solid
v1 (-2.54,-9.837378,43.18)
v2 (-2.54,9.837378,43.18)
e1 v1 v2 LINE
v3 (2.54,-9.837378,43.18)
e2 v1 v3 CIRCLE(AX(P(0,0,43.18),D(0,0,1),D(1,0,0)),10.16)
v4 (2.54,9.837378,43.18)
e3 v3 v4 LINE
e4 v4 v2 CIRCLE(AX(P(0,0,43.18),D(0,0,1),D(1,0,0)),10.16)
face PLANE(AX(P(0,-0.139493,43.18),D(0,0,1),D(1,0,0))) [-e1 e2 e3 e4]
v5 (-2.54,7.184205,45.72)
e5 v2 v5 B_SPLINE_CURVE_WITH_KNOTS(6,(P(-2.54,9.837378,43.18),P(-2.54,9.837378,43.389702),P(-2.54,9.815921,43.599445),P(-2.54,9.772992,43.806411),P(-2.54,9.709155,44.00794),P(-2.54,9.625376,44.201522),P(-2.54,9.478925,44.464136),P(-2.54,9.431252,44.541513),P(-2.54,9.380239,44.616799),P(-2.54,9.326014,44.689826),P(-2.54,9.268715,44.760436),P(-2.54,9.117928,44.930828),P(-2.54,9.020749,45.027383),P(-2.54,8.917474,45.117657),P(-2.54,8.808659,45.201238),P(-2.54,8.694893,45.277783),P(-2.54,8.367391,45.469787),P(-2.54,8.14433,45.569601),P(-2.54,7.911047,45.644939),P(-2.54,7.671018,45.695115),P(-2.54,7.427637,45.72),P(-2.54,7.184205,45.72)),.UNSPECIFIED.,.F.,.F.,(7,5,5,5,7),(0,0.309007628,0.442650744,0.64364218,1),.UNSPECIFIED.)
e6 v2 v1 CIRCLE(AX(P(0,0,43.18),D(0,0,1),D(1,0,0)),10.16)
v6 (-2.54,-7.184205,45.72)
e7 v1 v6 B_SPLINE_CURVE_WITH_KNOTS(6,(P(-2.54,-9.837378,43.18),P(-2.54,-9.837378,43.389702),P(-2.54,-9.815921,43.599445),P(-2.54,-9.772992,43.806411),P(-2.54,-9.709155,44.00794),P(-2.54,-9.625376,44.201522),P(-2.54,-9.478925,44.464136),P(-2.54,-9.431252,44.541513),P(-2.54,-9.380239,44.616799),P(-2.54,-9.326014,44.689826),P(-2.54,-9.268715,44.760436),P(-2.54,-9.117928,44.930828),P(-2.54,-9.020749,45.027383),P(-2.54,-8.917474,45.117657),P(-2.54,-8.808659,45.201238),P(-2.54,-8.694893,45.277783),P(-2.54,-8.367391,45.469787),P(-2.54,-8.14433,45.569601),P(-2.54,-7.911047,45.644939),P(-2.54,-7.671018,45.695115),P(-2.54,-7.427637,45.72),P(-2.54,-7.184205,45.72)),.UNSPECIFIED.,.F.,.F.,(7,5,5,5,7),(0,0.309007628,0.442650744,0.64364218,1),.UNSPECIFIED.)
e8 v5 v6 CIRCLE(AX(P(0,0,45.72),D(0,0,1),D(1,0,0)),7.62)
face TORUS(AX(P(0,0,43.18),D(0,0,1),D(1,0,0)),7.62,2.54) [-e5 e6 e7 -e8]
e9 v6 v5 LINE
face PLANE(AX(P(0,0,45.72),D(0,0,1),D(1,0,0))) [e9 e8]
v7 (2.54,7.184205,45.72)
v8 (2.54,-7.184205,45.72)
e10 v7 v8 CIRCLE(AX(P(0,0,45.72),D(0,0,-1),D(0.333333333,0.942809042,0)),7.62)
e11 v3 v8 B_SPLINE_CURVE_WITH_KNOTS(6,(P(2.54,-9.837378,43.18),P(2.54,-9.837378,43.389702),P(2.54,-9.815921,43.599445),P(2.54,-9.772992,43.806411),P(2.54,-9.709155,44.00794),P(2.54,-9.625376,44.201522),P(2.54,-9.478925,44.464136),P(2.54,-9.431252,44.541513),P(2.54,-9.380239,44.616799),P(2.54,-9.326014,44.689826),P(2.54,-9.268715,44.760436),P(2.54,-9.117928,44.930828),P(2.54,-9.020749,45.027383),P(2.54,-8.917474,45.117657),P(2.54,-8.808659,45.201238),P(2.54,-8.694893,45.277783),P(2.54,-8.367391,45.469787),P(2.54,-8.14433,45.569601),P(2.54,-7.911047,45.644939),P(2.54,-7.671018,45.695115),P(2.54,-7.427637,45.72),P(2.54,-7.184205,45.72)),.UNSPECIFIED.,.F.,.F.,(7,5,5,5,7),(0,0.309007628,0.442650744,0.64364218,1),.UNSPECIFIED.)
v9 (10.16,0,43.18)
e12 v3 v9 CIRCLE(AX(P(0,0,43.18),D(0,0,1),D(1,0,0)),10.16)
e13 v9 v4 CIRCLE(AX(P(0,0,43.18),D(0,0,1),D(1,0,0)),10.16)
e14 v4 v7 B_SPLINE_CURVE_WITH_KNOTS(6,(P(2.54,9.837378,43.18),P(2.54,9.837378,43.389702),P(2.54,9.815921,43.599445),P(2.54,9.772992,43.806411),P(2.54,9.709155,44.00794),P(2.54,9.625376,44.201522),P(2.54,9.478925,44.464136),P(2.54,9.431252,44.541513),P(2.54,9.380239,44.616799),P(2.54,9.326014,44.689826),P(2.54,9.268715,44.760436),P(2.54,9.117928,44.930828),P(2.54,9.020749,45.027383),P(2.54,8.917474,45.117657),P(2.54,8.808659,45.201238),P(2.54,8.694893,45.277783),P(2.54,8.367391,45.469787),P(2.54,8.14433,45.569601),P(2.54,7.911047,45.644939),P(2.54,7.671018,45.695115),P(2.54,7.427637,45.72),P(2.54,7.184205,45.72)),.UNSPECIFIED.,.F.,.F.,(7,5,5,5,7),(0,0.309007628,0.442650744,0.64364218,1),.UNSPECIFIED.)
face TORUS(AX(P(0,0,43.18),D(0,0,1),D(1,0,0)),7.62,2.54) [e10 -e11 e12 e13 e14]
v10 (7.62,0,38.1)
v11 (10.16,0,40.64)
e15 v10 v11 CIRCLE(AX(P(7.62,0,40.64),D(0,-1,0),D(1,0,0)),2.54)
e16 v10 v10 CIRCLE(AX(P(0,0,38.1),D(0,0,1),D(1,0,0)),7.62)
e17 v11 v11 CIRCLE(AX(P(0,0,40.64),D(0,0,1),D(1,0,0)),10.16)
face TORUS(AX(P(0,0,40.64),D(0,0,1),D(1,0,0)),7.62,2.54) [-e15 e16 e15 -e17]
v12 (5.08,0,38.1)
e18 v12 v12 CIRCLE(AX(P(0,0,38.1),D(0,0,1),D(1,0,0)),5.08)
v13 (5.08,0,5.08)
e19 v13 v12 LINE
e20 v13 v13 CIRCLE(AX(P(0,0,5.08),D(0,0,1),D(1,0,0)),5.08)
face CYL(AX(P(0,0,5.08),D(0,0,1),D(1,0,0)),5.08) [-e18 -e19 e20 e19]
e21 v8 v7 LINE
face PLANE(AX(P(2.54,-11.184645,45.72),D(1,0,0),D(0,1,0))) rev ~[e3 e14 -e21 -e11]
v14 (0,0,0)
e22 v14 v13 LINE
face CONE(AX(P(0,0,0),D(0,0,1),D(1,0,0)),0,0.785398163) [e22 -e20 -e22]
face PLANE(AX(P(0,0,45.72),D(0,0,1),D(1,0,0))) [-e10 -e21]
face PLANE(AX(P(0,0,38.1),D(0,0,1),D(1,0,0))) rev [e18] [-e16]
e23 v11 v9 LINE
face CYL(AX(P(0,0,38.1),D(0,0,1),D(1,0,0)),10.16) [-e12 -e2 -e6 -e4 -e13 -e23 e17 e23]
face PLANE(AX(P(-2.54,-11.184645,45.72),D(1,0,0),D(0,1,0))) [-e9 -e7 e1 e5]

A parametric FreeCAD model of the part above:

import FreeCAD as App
import Part
import Sketcher

V = App.Vector
Q = App.Units.Quantity


def edges_at(feature, points):
    """Names of the edges that pass closest to the given points."""
    edges = feature.Shape.Edges
    near = lambda p: min(range(len(edges)), key=lambda i: edges[i].distToShape(Part.Vertex(*p))[0])
    return sorted({f"Edge{near(p) + 1}" for p in points})

doc = App.newDocument("Part")
body = doc.addObject("PartDesign::Body", "Body")

sketch1 = body.newObject("Sketcher::SketchObject", "Sketch")
sketch1.AttachmentSupport = (doc.getObject("XZ_Plane"), [""])
sketch1.MapMode = "FlatFace"
sketch1.addGeometry(Part.LineSegment(V(0, 46, 0), V(0, 0, 0)), False)
sketch1.addGeometry(Part.LineSegment(V(0, 0, 0), V(5, 5, 0)), False)
sketch1.addGeometry(Part.LineSegment(V(5, 5, 0), V(5, 38, 0)), False)
sketch1.addGeometry(Part.LineSegment(V(5, 38, 0), V(10, 38, 0)), False)
sketch1.addGeometry(Part.LineSegment(V(10, 38, 0), V(10, 46, 0)), False)
sketch1.addGeometry(Part.LineSegment(V(10, 46, 0), V(0, 46, 0)), False)
sketch1.addConstraint(Sketcher.Constraint("Coincident", 0, 2, 1, 1))
sketch1.addConstraint(Sketcher.Constraint("Coincident", 1, 2, 2, 1))
sketch1.addConstraint(Sketcher.Constraint("Coincident", 2, 2, 3, 1))
sketch1.addConstraint(Sketcher.Constraint("Coincident", 3, 2, 4, 1))
sketch1.addConstraint(Sketcher.Constraint("Coincident", 4, 2, 5, 1))
sketch1.addConstraint(Sketcher.Constraint("Coincident", 5, 2, 0, 1))
sketch1.addConstraint(Sketcher.Constraint("Vertical", 0))
sketch1.addConstraint(Sketcher.Constraint("Vertical", 2))
sketch1.addConstraint(Sketcher.Constraint("Horizontal", 3))
sketch1.addConstraint(Sketcher.Constraint("Vertical", 4))
sketch1.addConstraint(Sketcher.Constraint("Horizontal", 5))
sketch1.addConstraint(Sketcher.Constraint("Coincident", 0, 2, -1, 1))
sketch1.addConstraint(Sketcher.Constraint("DistanceX", 3, 1, 3, 2, Q("0.2 in")))
sketch1.addConstraint(Sketcher.Constraint("DistanceX", 5, 2, 5, 1, Q("0.4 in")))
sketch1.addConstraint(Sketcher.Constraint("DistanceY", 0, 2, 0, 1, Q("1.8 in")))
sketch1.addConstraint(Sketcher.Constraint("DistanceY", 2, 1, 2, 2, Q("1.3 in")))
sketch1.addConstraint(Sketcher.Constraint("DistanceY", 4, 1, 4, 2, Q("0.3 in")))
revolution = body.newObject("PartDesign::Revolution", "Revolution")
revolution.Profile = sketch1
revolution.ReferenceAxis = (sketch1, ["V_Axis"])
revolution.Angle = 360
doc.recompute()

fillet = body.newObject("PartDesign::Fillet", "Fillet")
fillet.Base = (revolution, edges_at(revolution, [(-10.16, 0, 45.72), (-10.16, 0, 38.1)]))
fillet.Radius = Q("0.1 in")

sketch2 = body.newObject("Sketcher::SketchObject", "Sketch001")
sketch2.AttachmentSupport = (doc.getObject("XY_Plane"), [""])
sketch2.MapMode = "FlatFace"
sketch2.AttachmentOffset = App.Placement(V(0, 0, 1.8 * 25.4), App.Rotation())
sketch2.addGeometry(Part.LineSegment(V(-3, 11, 0), V(-3, -11, 0)), False)
sketch2.addGeometry(Part.LineSegment(V(-3, -11, 0), V(3, -11, 0)), False)
sketch2.addGeometry(Part.LineSegment(V(3, -11, 0), V(3, 11, 0)), False)
sketch2.addGeometry(Part.LineSegment(V(3, 11, 0), V(-3, 11, 0)), False)
sketch2.addConstraint(Sketcher.Constraint("Coincident", 0, 2, 1, 1))
sketch2.addConstraint(Sketcher.Constraint("Coincident", 1, 2, 2, 1))
sketch2.addConstraint(Sketcher.Constraint("Coincident", 2, 2, 3, 1))
sketch2.addConstraint(Sketcher.Constraint("Coincident", 3, 2, 0, 1))
sketch2.addConstraint(Sketcher.Constraint("Vertical", 0))
sketch2.addConstraint(Sketcher.Constraint("Horizontal", 1))
sketch2.addConstraint(Sketcher.Constraint("Vertical", 2))
sketch2.addConstraint(Sketcher.Constraint("Horizontal", 3))
sketch2.addConstraint(Sketcher.Constraint("DistanceX", 1, 1, 1, 2, Q("0.2 in")))
sketch2.addConstraint(Sketcher.Constraint("DistanceX", 0, 2, -1, 1, Q("0.1 in")))
sketch2.addConstraint(Sketcher.Constraint("DistanceY", 0, 2, 0, 1, Q("22.090304 mm")))
sketch2.addConstraint(Sketcher.Constraint("DistanceY", -1, 1, 2, 2, Q("10.905659 mm")))
pocket1 = body.newObject("PartDesign::Pocket", "Pocket")
pocket1.Profile = sketch2
pocket1.Length = Q("0.1 in")

doc.recompute()
